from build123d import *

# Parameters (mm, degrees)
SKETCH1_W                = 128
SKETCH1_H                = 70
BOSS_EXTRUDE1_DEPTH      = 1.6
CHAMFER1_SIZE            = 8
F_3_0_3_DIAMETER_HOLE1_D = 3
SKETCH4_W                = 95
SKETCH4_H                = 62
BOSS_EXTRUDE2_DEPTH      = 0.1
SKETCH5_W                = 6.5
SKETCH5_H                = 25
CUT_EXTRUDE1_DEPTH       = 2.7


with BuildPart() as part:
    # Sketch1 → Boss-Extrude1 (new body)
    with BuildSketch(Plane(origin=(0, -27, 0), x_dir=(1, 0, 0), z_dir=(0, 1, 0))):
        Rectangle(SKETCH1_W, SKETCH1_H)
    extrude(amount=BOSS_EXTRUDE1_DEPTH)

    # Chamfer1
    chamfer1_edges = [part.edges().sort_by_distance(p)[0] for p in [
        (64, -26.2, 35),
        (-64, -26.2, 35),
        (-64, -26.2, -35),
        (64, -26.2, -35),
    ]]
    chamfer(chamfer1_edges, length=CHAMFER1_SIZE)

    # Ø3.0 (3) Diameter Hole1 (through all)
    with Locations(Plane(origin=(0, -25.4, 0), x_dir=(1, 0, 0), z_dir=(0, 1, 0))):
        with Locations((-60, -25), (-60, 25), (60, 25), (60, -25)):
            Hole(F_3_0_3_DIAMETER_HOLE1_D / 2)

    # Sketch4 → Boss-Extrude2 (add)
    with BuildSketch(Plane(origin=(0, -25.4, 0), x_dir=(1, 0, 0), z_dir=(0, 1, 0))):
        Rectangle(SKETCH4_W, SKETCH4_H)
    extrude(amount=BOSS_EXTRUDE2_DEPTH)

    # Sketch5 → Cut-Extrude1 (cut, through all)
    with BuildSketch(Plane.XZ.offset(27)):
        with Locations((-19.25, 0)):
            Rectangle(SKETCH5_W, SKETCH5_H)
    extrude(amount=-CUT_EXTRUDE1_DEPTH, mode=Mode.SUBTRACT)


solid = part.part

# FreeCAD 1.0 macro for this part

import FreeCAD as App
import Part
import Sketcher
Q = App.Units.Quantity


def edges_at(feature, points):
    """Names of the edges that pass closest to the given points."""
    edges = feature.Shape.Edges
    near = lambda p: min(range(len(edges)), key=lambda i: edges[i].distToShape(Part.Vertex(*p))[0])
    return sorted({f"Edge{near(p) + 1}" for p in points})

doc = App.newDocument("Part")
params = doc.addObject("Spreadsheet::Sheet", "Params")
for row, (alias, value) in enumerate([
    ("sketch1_width", "128 mm"),
    ("sketch1_height", "70 mm"),
    ("pad1_length", "1.6 mm"),
    ("chamfer_size", "8 mm"),
    ("sketch2_diameter", "3 mm"),
    ("hole_diameter", "3 mm"),
    ("sketch3_width", "95 mm"),
    ("sketch3_height", "62 mm"),
    ("pad2_length", "0.1 mm"),
    ("sketch4_height", "25 mm"),
    ("sketch4_width", "6.5 mm"),
], start=1):
    params.set(f"A{row}", alias)
    params.set(f"B{row}", "=" + value)
    params.setAlias(f"B{row}", alias)

body = doc.addObject("PartDesign::Body", "Body")

sketch1 = body.newObject("Sketcher::SketchObject", "Sketch")
sketch1.AttachmentSupport = (doc.getObject("XZ_Plane"), [""])
sketch1.MapMode = "FlatFace"
sketch1.AttachmentOffset = App.Placement(App.Vector(0, 0, 27), App.Rotation())
sketch1.addGeometry(Part.LineSegment(App.Vector(-64, -35, 0), App.Vector(-64, 35, 0)), False)
sketch1.addGeometry(Part.LineSegment(App.Vector(-64, 35, 0), App.Vector(64, 35, 0)), False)
sketch1.addGeometry(Part.LineSegment(App.Vector(64, 35, 0), App.Vector(64, -35, 0)), False)
sketch1.addGeometry(Part.LineSegment(App.Vector(64, -35, 0), App.Vector(-64, -35, 0)), False)
sketch1.addConstraint(Sketcher.Constraint("Coincident", 0, 2, 1, 1))
sketch1.addConstraint(Sketcher.Constraint("Coincident", 1, 2, 2, 1))
sketch1.addConstraint(Sketcher.Constraint("Coincident", 2, 2, 3, 1))
sketch1.addConstraint(Sketcher.Constraint("Coincident", 3, 2, 0, 1))
sketch1.addConstraint(Sketcher.Constraint("Vertical", 0))
sketch1.addConstraint(Sketcher.Constraint("Horizontal", 1))
sketch1.addConstraint(Sketcher.Constraint("Vertical", 2))
sketch1.addConstraint(Sketcher.Constraint("Horizontal", 3))
sketch1.addConstraint(Sketcher.Constraint("Symmetric", 0, 2, 2, 2, -1, 1))
sketch1.addConstraint(Sketcher.Constraint("DistanceX", 1, 1, 1, 2, Q("128 mm")))
sketch1.addConstraint(Sketcher.Constraint("DistanceY", 0, 1, 0, 2, Q("70 mm")))
sketch1.setExpression("Constraints[9]", "Params.sketch1_width")
sketch1.setExpression("Constraints[10]", "Params.sketch1_height")
pad1 = body.newObject("PartDesign::Pad", "Pad")
pad1.Profile = sketch1
pad1.setExpression("Length", "Params.pad1_length")
pad1.Reversed = True
doc.recompute()

chamfer = body.newObject("PartDesign::Chamfer", "Chamfer")
chamfer.Base = (pad1, edges_at(pad1, [
    (64, -26.2, 35),
    (-64, -26.2, 35),
    (-64, -26.2, -35),
    (64, -26.2, -35),
]))
chamfer.setExpression("Size", "Params.chamfer_size")

sketch2 = body.newObject("Sketcher::SketchObject", "Sketch001")
sketch2.AttachmentSupport = (doc.getObject("XZ_Plane"), [""])
sketch2.MapMode = "FlatFace"
sketch2.AttachmentOffset = App.Placement(App.Vector(0, 0, 25.4), App.Rotation())
sketch2.addGeometry(Part.Circle(App.Vector(-60, 25, 0), App.Vector(0, 0, 1), 1.5), False)
sketch2.addGeometry(Part.Circle(App.Vector(-60, -25, 0), App.Vector(0, 0, 1), 1.5), False)
sketch2.addGeometry(Part.Circle(App.Vector(60, -25, 0), App.Vector(0, 0, 1), 1.5), False)
sketch2.addGeometry(Part.Circle(App.Vector(60, 25, 0), App.Vector(0, 0, 1), 1.5), False)
sketch2.addConstraint(Sketcher.Constraint("Equal", 0, 1))
sketch2.addConstraint(Sketcher.Constraint("Equal", 1, 2))
sketch2.addConstraint(Sketcher.Constraint("Equal", 2, 3))
sketch2.addConstraint(Sketcher.Constraint("Symmetric", 0, 3, 2, 3, -1, 1))
sketch2.addConstraint(Sketcher.Constraint("Symmetric", 1, 3, 3, 3, -1, 1))
sketch2.addConstraint(Sketcher.Constraint("Symmetric", 1, 3, 2, 3, -2))
sketch2.addConstraint(Sketcher.Constraint("Diameter", 0, Q("3 mm")))
sketch2.addConstraint(Sketcher.Constraint("DistanceX", 0, 3, -1, 1, Q("60 mm")))
sketch2.addConstraint(Sketcher.Constraint("DistanceY", -1, 1, 0, 3, Q("25 mm")))
sketch2.setExpression("Constraints[6]", "Params.sketch2_diameter")
doc.recompute()
hole = body.newObject("PartDesign::Hole", "Hole")
hole.Profile = sketch2
hole.ThreadType = "None"
hole.setExpression("Diameter", "Params.hole_diameter")
hole.DepthType = "ThroughAll"
hole.Reversed = True

sketch3 = body.newObject("Sketcher::SketchObject", "Sketch002")
sketch3.AttachmentSupport = (doc.getObject("XZ_Plane"), [""])
sketch3.MapMode = "FlatFace"
sketch3.AttachmentOffset = App.Placement(App.Vector(0, 0, 25.4), App.Rotation())
sketch3.addGeometry(Part.LineSegment(App.Vector(-48, -31, 0), App.Vector(-48, 31, 0)), False)
sketch3.addGeometry(Part.LineSegment(App.Vector(-48, 31, 0), App.Vector(48, 31, 0)), False)
sketch3.addGeometry(Part.LineSegment(App.Vector(48, 31, 0), App.Vector(48, -31, 0)), False)
sketch3.addGeometry(Part.LineSegment(App.Vector(48, -31, 0), App.Vector(-48, -31, 0)), False)
sketch3.addConstraint(Sketcher.Constraint("Coincident", 0, 2, 1, 1))
sketch3.addConstraint(Sketcher.Constraint("Coincident", 1, 2, 2, 1))
sketch3.addConstraint(Sketcher.Constraint("Coincident", 2, 2, 3, 1))
sketch3.addConstraint(Sketcher.Constraint("Coincident", 3, 2, 0, 1))
sketch3.addConstraint(Sketcher.Constraint("Vertical", 0))
sketch3.addConstraint(Sketcher.Constraint("Horizontal", 1))
sketch3.addConstraint(Sketcher.Constraint("Vertical", 2))
sketch3.addConstraint(Sketcher.Constraint("Horizontal", 3))
sketch3.addConstraint(Sketcher.Constraint("Symmetric", 0, 2, 2, 2, -1, 1))
sketch3.addConstraint(Sketcher.Constraint("DistanceX", 1, 1, 1, 2, Q("95 mm")))
sketch3.addConstraint(Sketcher.Constraint("DistanceY", 0, 1, 0, 2, Q("62 mm")))
sketch3.setExpression("Constraints[9]", "Params.sketch3_width")
sketch3.setExpression("Constraints[10]", "Params.sketch3_height")
pad2 = body.newObject("PartDesign::Pad", "Pad001")
pad2.Profile = sketch3
pad2.setExpression("Length", "Params.pad2_length")
pad2.Reversed = True

sketch4 = body.newObject("Sketcher::SketchObject", "Sketch003")
sketch4.AttachmentSupport = (doc.getObject("XZ_Plane"), [""])
sketch4.MapMode = "FlatFace"
sketch4.AttachmentOffset = App.Placement(App.Vector(0, 0, 27), App.Rotation())
sketch4.addGeometry(Part.LineSegment(App.Vector(-22, 12, 0), App.Vector(-22, -12, 0)), False)
sketch4.addGeometry(Part.LineSegment(App.Vector(-22, -12, 0), App.Vector(-16, -12, 0)), False)
sketch4.addGeometry(Part.LineSegment(App.Vector(-16, -12, 0), App.Vector(-16, 12, 0)), False)
sketch4.addGeometry(Part.LineSegment(App.Vector(-16, 12, 0), App.Vector(-22, 12, 0)), False)
sketch4.addConstraint(Sketcher.Constraint("Coincident", 0, 2, 1, 1))
sketch4.addConstraint(Sketcher.Constraint("Coincident", 1, 2, 2, 1))
sketch4.addConstraint(Sketcher.Constraint("Coincident", 2, 2, 3, 1))
sketch4.addConstraint(Sketcher.Constraint("Coincident", 3, 2, 0, 1))
sketch4.addConstraint(Sketcher.Constraint("Vertical", 0))
sketch4.addConstraint(Sketcher.Constraint("Horizontal", 1))
sketch4.addConstraint(Sketcher.Constraint("Vertical", 2))
sketch4.addConstraint(Sketcher.Constraint("Horizontal", 3))
sketch4.addConstraint(Sketcher.Constraint("DistanceY", 0, 2, 0, 1, Q("25 mm")))
sketch4.addConstraint(Sketcher.Constraint("DistanceX", 1, 1, 1, 2, Q("6.5 mm")))
sketch4.addConstraint(Sketcher.Constraint("DistanceX", 1, 2, -1, 1, Q("16 mm")))
sketch4.addConstraint(Sketcher.Constraint("DistanceY", 0, 2, -1, 1, Q("12.5 mm")))
sketch4.setExpression("Constraints[8]", "Params.sketch4_height")
sketch4.setExpression("Constraints[9]", "Params.sketch4_width")
pocket1 = body.newObject("PartDesign::Pocket", "Pocket")
pocket1.Profile = sketch4
pocket1.Type = "ThroughAll"

doc.recompute()
